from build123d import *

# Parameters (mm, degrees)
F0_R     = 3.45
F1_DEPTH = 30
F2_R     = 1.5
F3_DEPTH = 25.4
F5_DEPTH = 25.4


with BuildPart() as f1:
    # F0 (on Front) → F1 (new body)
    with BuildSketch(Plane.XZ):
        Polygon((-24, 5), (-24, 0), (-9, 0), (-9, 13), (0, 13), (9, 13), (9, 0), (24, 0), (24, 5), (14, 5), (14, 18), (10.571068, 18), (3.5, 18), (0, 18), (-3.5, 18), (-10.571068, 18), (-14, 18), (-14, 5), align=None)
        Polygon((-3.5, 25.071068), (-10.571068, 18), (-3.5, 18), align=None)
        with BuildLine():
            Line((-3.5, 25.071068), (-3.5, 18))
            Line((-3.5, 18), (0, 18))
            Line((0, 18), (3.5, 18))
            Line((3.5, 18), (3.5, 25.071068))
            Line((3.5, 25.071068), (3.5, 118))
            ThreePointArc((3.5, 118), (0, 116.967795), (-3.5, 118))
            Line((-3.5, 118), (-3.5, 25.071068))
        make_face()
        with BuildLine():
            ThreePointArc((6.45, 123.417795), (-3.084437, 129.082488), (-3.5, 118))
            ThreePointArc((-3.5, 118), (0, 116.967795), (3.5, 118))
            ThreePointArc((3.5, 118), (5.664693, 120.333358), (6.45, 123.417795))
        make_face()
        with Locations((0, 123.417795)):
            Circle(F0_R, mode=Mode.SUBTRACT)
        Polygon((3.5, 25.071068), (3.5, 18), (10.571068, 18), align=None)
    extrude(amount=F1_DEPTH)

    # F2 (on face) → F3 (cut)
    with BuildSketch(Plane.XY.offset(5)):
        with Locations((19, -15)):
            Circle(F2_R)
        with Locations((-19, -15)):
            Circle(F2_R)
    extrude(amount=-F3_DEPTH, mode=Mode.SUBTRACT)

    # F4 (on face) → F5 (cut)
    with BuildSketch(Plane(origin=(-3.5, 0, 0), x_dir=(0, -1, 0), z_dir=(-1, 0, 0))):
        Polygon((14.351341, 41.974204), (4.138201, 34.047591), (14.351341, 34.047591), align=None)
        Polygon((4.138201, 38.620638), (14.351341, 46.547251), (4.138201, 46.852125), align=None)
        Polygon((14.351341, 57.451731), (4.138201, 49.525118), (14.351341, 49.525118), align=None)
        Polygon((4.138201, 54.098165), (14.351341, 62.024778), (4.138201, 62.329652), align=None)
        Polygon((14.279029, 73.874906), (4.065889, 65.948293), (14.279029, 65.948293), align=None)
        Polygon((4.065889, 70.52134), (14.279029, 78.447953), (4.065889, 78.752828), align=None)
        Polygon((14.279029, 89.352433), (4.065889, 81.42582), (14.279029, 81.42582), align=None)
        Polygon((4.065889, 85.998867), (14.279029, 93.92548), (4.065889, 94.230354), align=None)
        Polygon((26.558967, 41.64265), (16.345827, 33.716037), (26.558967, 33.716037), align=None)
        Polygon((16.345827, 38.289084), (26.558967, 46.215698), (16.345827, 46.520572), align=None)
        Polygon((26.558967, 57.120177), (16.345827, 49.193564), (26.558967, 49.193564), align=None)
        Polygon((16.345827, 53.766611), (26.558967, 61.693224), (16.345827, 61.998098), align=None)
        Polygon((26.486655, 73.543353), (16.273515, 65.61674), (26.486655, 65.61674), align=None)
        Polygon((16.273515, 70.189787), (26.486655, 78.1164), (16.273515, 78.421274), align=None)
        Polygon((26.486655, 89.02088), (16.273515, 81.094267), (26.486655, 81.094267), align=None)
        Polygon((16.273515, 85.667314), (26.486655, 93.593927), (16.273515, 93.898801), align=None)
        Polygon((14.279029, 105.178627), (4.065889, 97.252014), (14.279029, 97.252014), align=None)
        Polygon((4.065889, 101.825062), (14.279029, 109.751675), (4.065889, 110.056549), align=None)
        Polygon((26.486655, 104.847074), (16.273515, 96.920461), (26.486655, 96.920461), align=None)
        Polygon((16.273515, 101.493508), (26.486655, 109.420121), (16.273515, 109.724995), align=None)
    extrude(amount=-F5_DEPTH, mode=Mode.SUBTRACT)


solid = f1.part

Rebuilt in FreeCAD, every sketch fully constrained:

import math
import FreeCAD as App
import Part
import Sketcher


def add_polygon(sketch, points):
    """Adds a closed chain of lines whose ends are joined by coincident constraints."""
    first, n = sketch.GeometryCount, len(points)
    for a, b in zip(points, points[1:] + points[:1]):
        sketch.addGeometry(Part.LineSegment(App.Vector(*a, 0), App.Vector(*b, 0)), False)
    for i in range(n):
        sketch.addConstraint(Sketcher.Constraint("Coincident", first + i, 2, first + (i + 1) % n, 1))

doc = App.newDocument("Part")
body = doc.addObject("PartDesign::Body", "Body")

# Sketch on XZ plane
sketch1 = doc.addObject("Sketcher::SketchObject", "Sketch")
body.addObject(sketch1)
sketch1.AttachmentSupport = (doc.XZ_Plane, [""])
sketch1.MapMode = "FlatFace"
sketch1.addGeometry([
    Part.LineSegment(App.Vector(-24, 5, 0), App.Vector(-24, 0, 0)),  # 0
    Part.LineSegment(App.Vector(-24, 0, 0), App.Vector(-9, 0, 0)),  # 1
    Part.LineSegment(App.Vector(-9, 0, 0), App.Vector(-9, 13, 0)),  # 2
    Part.LineSegment(App.Vector(-9, 13, 0), App.Vector(9, 13, 0)),  # 3
    Part.LineSegment(App.Vector(9, 13, 0), App.Vector(9, 0, 0)),  # 4
    Part.LineSegment(App.Vector(9, 0, 0), App.Vector(24, 0, 0)),  # 5
    Part.LineSegment(App.Vector(24, 0, 0), App.Vector(24, 5, 0)),  # 6
    Part.LineSegment(App.Vector(24, 5, 0), App.Vector(14, 5, 0)),  # 7
    Part.LineSegment(App.Vector(14, 5, 0), App.Vector(14, 18, 0)),  # 8
    Part.LineSegment(App.Vector(14, 18, 0), App.Vector(10.6, 18, 0)),  # 9
    Part.LineSegment(App.Vector(10.6, 18, 0), App.Vector(3.5, 25.1, 0)),  # 10
    Part.LineSegment(App.Vector(3.5, 25.1, 0), App.Vector(3.5, 118, 0)),  # 11
    Part.ArcOfCircle(Part.Circle(App.Vector(0, 123.4, 0), App.Vector(0, 0, 1), 6.5), math.radians(-57), math.radians(0)),  # 12
    Part.ArcOfCircle(Part.Circle(App.Vector(0, 123.4, 0), App.Vector(0, 0, 1), 6.5), math.radians(0), math.radians(237)),  # 13
    Part.LineSegment(App.Vector(-3.5, 118, 0), App.Vector(-3.5, 25.1, 0)),  # 14
    Part.LineSegment(App.Vector(-3.5, 25.1, 0), App.Vector(-10.6, 18, 0)),  # 15
    Part.LineSegment(App.Vector(-10.6, 18, 0), App.Vector(-14, 18, 0)),  # 16
    Part.LineSegment(App.Vector(-14, 18, 0), App.Vector(-14, 5, 0)),  # 17
    Part.LineSegment(App.Vector(-14, 5, 0), App.Vector(-24, 5, 0)),  # 18
    Part.Circle(App.Vector(0, 123.4, 0), App.Vector(0, 0, 1), 3.5),  # 19
], False)
sketch1.addConstraint([
    Sketcher.Constraint("Coincident", 0, 2, 1, 1),
    Sketcher.Constraint("Coincident", 1, 2, 2, 1),
    Sketcher.Constraint("Coincident", 2, 2, 3, 1),
    Sketcher.Constraint("Coincident", 3, 2, 4, 1),
    Sketcher.Constraint("Coincident", 4, 2, 5, 1),
    Sketcher.Constraint("Coincident", 5, 2, 6, 1),
    Sketcher.Constraint("Coincident", 6, 2, 7, 1),
    Sketcher.Constraint("Coincident", 7, 2, 8, 1),
    Sketcher.Constraint("Coincident", 8, 2, 9, 1),
    Sketcher.Constraint("Coincident", 9, 2, 10, 1),
    Sketcher.Constraint("Coincident", 10, 2, 11, 1),
    Sketcher.Constraint("Coincident", 11, 2, 12, 1),
    Sketcher.Constraint("Tangent", 12, 2, 13, 1),
    Sketcher.Constraint("Coincident", 13, 2, 14, 1),
    Sketcher.Constraint("Coincident", 14, 2, 15, 1),
    Sketcher.Constraint("Coincident", 15, 2, 16, 1),
    Sketcher.Constraint("Coincident", 16, 2, 17, 1),
    Sketcher.Constraint("Coincident", 17, 2, 18, 1),
    Sketcher.Constraint("Coincident", 18, 2, 0, 1),
    Sketcher.Constraint("Vertical", 0),
    Sketcher.Constraint("Horizontal", 1),
    Sketcher.Constraint("Vertical", 2),
    Sketcher.Constraint("Horizontal", 3),
    Sketcher.Constraint("Vertical", 4),
    Sketcher.Constraint("Horizontal", 5),
    Sketcher.Constraint("Vertical", 6),
    Sketcher.Constraint("Horizontal", 7),
    Sketcher.Constraint("Vertical", 8),
    Sketcher.Constraint("Horizontal", 9),
    Sketcher.Constraint("Vertical", 11),
    Sketcher.Constraint("Vertical", 14),
    Sketcher.Constraint("Horizontal", 16),
    Sketcher.Constraint("Vertical", 17),
    Sketcher.Constraint("Horizontal", 18),
    Sketcher.Constraint("Coincident", 19, 3, 12, 3),
    Sketcher.Constraint("Equal", 12, 13),
    Sketcher.Constraint("Symmetric", 1, 2, 4, 2, -1, 1),
    Sketcher.Constraint("Symmetric", 0, 2, 5, 2, -2),
    Sketcher.Constraint("Symmetric", 11, 2, 13, 2, -2),
    Sketcher.Constraint("Symmetric", 9, 2, 15, 2, -2),
    Sketcher.Constraint("Symmetric", 7, 2, 17, 2, -2),
    Sketcher.Constraint("Perpendicular", 10, 15),
    Sketcher.Constraint("Horizontal", 19, 3, 12, 2),
    Sketcher.Constraint("Horizontal", 10, 2, 14, 2),
    Sketcher.Constraint("Equal", 4, 8),
    Sketcher.Constraint("Diameter", 19, 6.9),
    Sketcher.Constraint("DistanceX", 1, 1, 1, 2, 15.0),
    Sketcher.Constraint("DistanceX", 3, 1, 3, 2, 18.0),
    Sketcher.Constraint("DistanceX", 7, 2, 7, 1, 10.0),
    Sketcher.Constraint("DistanceY", 0, 2, 0, 1, 5.0),
    Sketcher.Constraint("DistanceY", 2, 1, 2, 2, 13.0),
    Sketcher.Constraint("Radius", 12, 6.450002),
    Sketcher.Constraint("Distance", 10, 10.0),
    Sketcher.Constraint("DistanceY", -1, 1, 11, 2, 118.0),
    Sketcher.Constraint("DistanceX", 13, 2, 11, 2, 7.0),
])
pad1 = doc.addObject("PartDesign::Pad", "Pad")
body.addObject(pad1)
pad1.Profile = sketch1
pad1.Length = 30

# Sketch on XY plane
sketch2 = doc.addObject("Sketcher::SketchObject", "Sketch001")
body.addObject(sketch2)
sketch2.AttachmentSupport = (doc.XY_Plane, [""])
sketch2.MapMode = "FlatFace"
sketch2.AttachmentOffset = App.Placement(App.Vector(0, 0, 5), App.Rotation())
sketch2.addGeometry([
    Part.Circle(App.Vector(19, -15, 0), App.Vector(0, 0, 1), 1.5),
    Part.Circle(App.Vector(-19, -15, 0), App.Vector(0, 0, 1), 1.5),
], False)
sketch2.addConstraint([
    Sketcher.Constraint("Equal", 0, 1),
    Sketcher.Constraint("Symmetric", 0, 3, 1, 3, -2),
    Sketcher.Constraint("Diameter", 0, 3.0),
    Sketcher.Constraint("DistanceX", -1, 1, 0, 3, 19.0),
    Sketcher.Constraint("DistanceY", 0, 3, -1, 1, 15.0),
])
pocket1 = doc.addObject("PartDesign::Pocket", "Pocket")
body.addObject(pocket1)
pocket1.Profile = sketch2
pocket1.Length = 25.4

# Sketch on YZ plane
sketch3 = doc.addObject("Sketcher::SketchObject", "Sketch002")
body.addObject(sketch3)
sketch3.AttachmentSupport = (doc.YZ_Plane, [""])
sketch3.MapMode = "FlatFace"
sketch3.AttachmentOffset = App.Placement(App.Vector(0, 0, -3.5), App.Rotation())
add_polygon(sketch3, [(-14.351341, 41.974204), (-4.138201, 34.047591), (-14.351341, 34.047591)])  # lines 0-2
add_polygon(sketch3, [(-4.138201, 38.620638), (-14.351341, 46.547251), (-4.138201, 46.852125)])  # lines 3-5
add_polygon(sketch3, [(-14.351341, 57.451731), (-4.138201, 49.525118), (-14.351341, 49.525118)])  # lines 6-8
add_polygon(sketch3, [(-4.138201, 54.098165), (-14.351341, 62.024778), (-4.138201, 62.329652)])  # lines 9-11
add_polygon(sketch3, [(-14.279029, 73.874906), (-4.065889, 65.948293), (-14.279029, 65.948293)])  # lines 12-14
add_polygon(sketch3, [(-4.065889, 70.52134), (-14.279029, 78.447953), (-4.065889, 78.752828)])  # lines 15-17
add_polygon(sketch3, [(-14.279029, 89.352433), (-4.065889, 81.42582), (-14.279029, 81.42582)])  # lines 18-20
add_polygon(sketch3, [(-4.065889, 85.998867), (-14.279029, 93.92548), (-4.065889, 94.230354)])  # lines 21-23
add_polygon(sketch3, [(-26.558967, 41.64265), (-16.345827, 33.716037), (-26.558967, 33.716037)])  # lines 24-26
add_polygon(sketch3, [(-16.345827, 38.289084), (-26.558967, 46.215698), (-16.345827, 46.520572)])  # lines 27-29
add_polygon(sketch3, [(-26.558967, 57.120177), (-16.345827, 49.193564), (-26.558967, 49.193564)])  # lines 30-32
add_polygon(sketch3, [(-16.345827, 53.766611), (-26.558967, 61.693224), (-16.345827, 61.998098)])  # lines 33-35
add_polygon(sketch3, [(-26.486655, 73.543353), (-16.273515, 65.61674), (-26.486655, 65.61674)])  # lines 36-38
add_polygon(sketch3, [(-16.273515, 70.189787), (-26.486655, 78.1164), (-16.273515, 78.421274)])  # lines 39-41
add_polygon(sketch3, [(-26.486655, 89.02088), (-16.273515, 81.094267), (-26.486655, 81.094267)])  # lines 42-44
add_polygon(sketch3, [(-16.273515, 85.667314), (-26.486655, 93.593927), (-16.273515, 93.898801)])  # lines 45-47
add_polygon(sketch3, [(-14.279029, 105.178627), (-4.065889, 97.252014), (-14.279029, 97.252014)])  # lines 48-50
add_polygon(sketch3, [(-4.065889, 101.825062), (-14.279029, 109.751675), (-4.065889, 110.056549)])  # lines 51-53
add_polygon(sketch3, [(-26.486655, 104.847074), (-16.273515, 96.920461), (-26.486655, 96.920461)])  # lines 54-56
add_polygon(sketch3, [(-16.273515, 101.493508), (-26.486655, 109.420121), (-16.273515, 109.724995)])  # lines 57-59
sketch3.addConstraint([
    Sketcher.Constraint("Horizontal", 1),
    Sketcher.Constraint("Vertical", 2),
    Sketcher.Constraint("Vertical", 5),
    Sketcher.Constraint("Horizontal", 7),
    Sketcher.Constraint("Vertical", 8),
    Sketcher.Constraint("Vertical", 11),
    Sketcher.Constraint("Horizontal", 13),
    Sketcher.Constraint("Vertical", 14),
    Sketcher.Constraint("Vertical", 17),
    Sketcher.Constraint("Horizontal", 19),
    Sketcher.Constraint("Vertical", 20),
    Sketcher.Constraint("Vertical", 23),
    Sketcher.Constraint("Horizontal", 25),
    Sketcher.Constraint("Vertical", 26),
    Sketcher.Constraint("Vertical", 29),
    Sketcher.Constraint("Horizontal", 31),
    Sketcher.Constraint("Vertical", 32),
    Sketcher.Constraint("Vertical", 35),
    Sketcher.Constraint("Horizontal", 37),
    Sketcher.Constraint("Vertical", 38),
    Sketcher.Constraint("Vertical", 41),
    Sketcher.Constraint("Horizontal", 43),
    Sketcher.Constraint("Vertical", 44),
    Sketcher.Constraint("Vertical", 47),
    Sketcher.Constraint("Horizontal", 49),
    Sketcher.Constraint("Vertical", 50),
    Sketcher.Constraint("Vertical", 53),
    Sketcher.Constraint("Horizontal", 55),
    Sketcher.Constraint("Vertical", 56),
    Sketcher.Constraint("Vertical", 59),
    Sketcher.Constraint("Parallel", 0, 3),
    Sketcher.Constraint("Parallel", 3, 6),
    Sketcher.Constraint("Parallel", 6, 9),
    Sketcher.Constraint("Parallel", 4, 10),
    Sketcher.Constraint("Parallel", 9, 12),
    Sketcher.Constraint("Parallel", 12, 15),
    Sketcher.Constraint("Parallel", 10, 16),
    Sketcher.Constraint("Parallel", 15, 18),
    Sketcher.Constraint("Parallel", 18, 21),
    Sketcher.Constraint("Parallel", 16, 22),
    Sketcher.Constraint("Parallel", 21, 24),
    Sketcher.Constraint("Parallel", 24, 27),
    Sketcher.Constraint("Parallel", 22, 28),
    Sketcher.Constraint("Parallel", 27, 30),
    Sketcher.Constraint("Parallel", 30, 33),
    Sketcher.Constraint("Parallel", 28, 34),
    Sketcher.Constraint("Parallel", 33, 36),
    Sketcher.Constraint("Parallel", 36, 39),
    Sketcher.Constraint("Parallel", 34, 40),
    Sketcher.Constraint("Parallel", 39, 42),
    Sketcher.Constraint("Parallel", 42, 45),
    Sketcher.Constraint("Parallel", 40, 46),
    Sketcher.Constraint("Parallel", 45, 48),
    Sketcher.Constraint("Parallel", 48, 51),
    Sketcher.Constraint("Parallel", 46, 52),
    Sketcher.Constraint("Parallel", 51, 54),
    Sketcher.Constraint("Parallel", 54, 57),
    Sketcher.Constraint("Parallel", 52, 58),
    Sketcher.Constraint("Vertical", 2, 2, 3, 2),
    Sketcher.Constraint("Vertical", 0, 2, 4, 2),
    Sketcher.Constraint("Vertical", 5, 2, 6, 2),
    Sketcher.Constraint("Vertical", 3, 2, 7, 2),
    Sketcher.Constraint("Vertical", 8, 2, 9, 2),
    Sketcher.Constraint("Vertical", 6, 2, 10, 2),
    Sketcher.Constraint("Vertical", 14, 2, 15, 2),
    Sketcher.Constraint("Vertical", 12, 2, 16, 2),
    Sketcher.Constraint("Vertical", 17, 2, 18, 2),
    Sketcher.Constraint("Vertical", 15, 2, 19, 2),
    Sketcher.Constraint("Vertical", 20, 2, 21, 2),
    Sketcher.Constraint("Vertical", 18, 2, 22, 2),
    Sketcher.Constraint("Vertical", 26, 2, 27, 2),
    Sketcher.Constraint("Vertical", 24, 2, 28, 2),
    Sketcher.Constraint("Vertical", 29, 2, 30, 2),
    Sketcher.Constraint("Vertical", 27, 2, 31, 2),
    Sketcher.Constraint("Vertical", 32, 2, 33, 2),
    Sketcher.Constraint("Vertical", 30, 2, 34, 2),
    Sketcher.Constraint("Vertical", 38, 2, 39, 2),
    Sketcher.Constraint("Vertical", 36, 2, 40, 2),
    Sketcher.Constraint("Vertical", 41, 2, 42, 2),
    Sketcher.Constraint("Vertical", 39, 2, 43, 2),
    Sketcher.Constraint("Vertical", 44, 2, 45, 2),
    Sketcher.Constraint("Vertical", 42, 2, 46, 2),
    Sketcher.Constraint("Vertical", 23, 2, 48, 2),
    Sketcher.Constraint("Vertical", 21, 2, 49, 2),
    Sketcher.Constraint("Vertical", 50, 2, 51, 2),
    Sketcher.Constraint("Vertical", 48, 2, 52, 2),
    Sketcher.Constraint("Vertical", 47, 2, 54, 2),
    Sketcher.Constraint("Vertical", 45, 2, 55, 2),
    Sketcher.Constraint("Vertical", 56, 2, 57, 2),
    Sketcher.Constraint("Vertical", 54, 2, 58, 2),
    Sketcher.Constraint("Equal", 7, 13),
    Sketcher.Constraint("Equal", 19, 25),
    Sketcher.Constraint("Equal", 31, 37),
    Sketcher.Constraint("DistanceX", 1, 2, 1, 1, 10.21314),
    Sketcher.Constraint("DistanceX", 0, 2, -1, 1, 4.138201),
    Sketcher.Constraint("DistanceY", -1, 1, 27, 2, 46.215698),
    Sketcher.Constraint("DistanceY", -1, 1, 39, 2, 78.1164),
    Sketcher.Constraint("DistanceY", -1, 1, 46, 2, 93.898801),
    Sketcher.Constraint("DistanceY", 10, 2, 15, 2, 16.118301),
    Sketcher.Constraint("DistanceY", 24, 2, 5, 2, 4.904601),
    Sketcher.Constraint("DistanceY", 32, 2, 9, 2, 4.904601),
    Sketcher.Constraint("DistanceX", 34, 2, 13, 2, 2.066798),
    Sketcher.Constraint("DistanceY", 38, 2, 15, 2, 4.9046),
    Sketcher.Constraint("DistanceY", 44, 2, 21, 2, 4.9046),
    Sketcher.Constraint("DistanceY", 56, 2, 51, 2, 4.904601),
    Sketcher.Constraint("Distance", 0, 12.928241),
    Sketcher.Constraint("Distance", 4, 10.217689),
    Sketcher.Constraint("DistanceY", -1, 1, 0, 2, 34.047591),
    Sketcher.Constraint("DistanceY", -1, 1, 3, 2, 46.547251),
    Sketcher.Constraint("DistanceY", -1, 1, 8, 2, 57.451731),
    Sketcher.Constraint("DistanceX", 12, 2, -1, 1, 4.065889),
    Sketcher.Constraint("DistanceY", -1, 1, 17, 2, 70.52134),
    Sketcher.Constraint("DistanceY", -1, 1, 18, 2, 81.42582),
    Sketcher.Constraint("DistanceY", -1, 1, 21, 2, 93.92548),
    Sketcher.Constraint("DistanceY", -1, 1, 35, 2, 53.766611),
    Sketcher.Constraint("DistanceY", -1, 1, 52, 2, 110.056549),
    Sketcher.Constraint("DistanceY", -1, 1, 57, 2, 109.420121),
    Sketcher.Constraint("DistanceY", 10, 2, 12, 2, 3.618641),
    Sketcher.Constraint("DistanceY", 22, 2, 48, 2, 3.02166),
    Sketcher.Constraint("DistanceX", 36, 2, -1, 1, 16.273515),
])
pocket2 = doc.addObject("PartDesign::Pocket", "Pocket001")
body.addObject(pocket2)
pocket2.Profile = sketch3
pocket2.Length = 25.4
pocket2.Reversed = True

doc.recompute()
